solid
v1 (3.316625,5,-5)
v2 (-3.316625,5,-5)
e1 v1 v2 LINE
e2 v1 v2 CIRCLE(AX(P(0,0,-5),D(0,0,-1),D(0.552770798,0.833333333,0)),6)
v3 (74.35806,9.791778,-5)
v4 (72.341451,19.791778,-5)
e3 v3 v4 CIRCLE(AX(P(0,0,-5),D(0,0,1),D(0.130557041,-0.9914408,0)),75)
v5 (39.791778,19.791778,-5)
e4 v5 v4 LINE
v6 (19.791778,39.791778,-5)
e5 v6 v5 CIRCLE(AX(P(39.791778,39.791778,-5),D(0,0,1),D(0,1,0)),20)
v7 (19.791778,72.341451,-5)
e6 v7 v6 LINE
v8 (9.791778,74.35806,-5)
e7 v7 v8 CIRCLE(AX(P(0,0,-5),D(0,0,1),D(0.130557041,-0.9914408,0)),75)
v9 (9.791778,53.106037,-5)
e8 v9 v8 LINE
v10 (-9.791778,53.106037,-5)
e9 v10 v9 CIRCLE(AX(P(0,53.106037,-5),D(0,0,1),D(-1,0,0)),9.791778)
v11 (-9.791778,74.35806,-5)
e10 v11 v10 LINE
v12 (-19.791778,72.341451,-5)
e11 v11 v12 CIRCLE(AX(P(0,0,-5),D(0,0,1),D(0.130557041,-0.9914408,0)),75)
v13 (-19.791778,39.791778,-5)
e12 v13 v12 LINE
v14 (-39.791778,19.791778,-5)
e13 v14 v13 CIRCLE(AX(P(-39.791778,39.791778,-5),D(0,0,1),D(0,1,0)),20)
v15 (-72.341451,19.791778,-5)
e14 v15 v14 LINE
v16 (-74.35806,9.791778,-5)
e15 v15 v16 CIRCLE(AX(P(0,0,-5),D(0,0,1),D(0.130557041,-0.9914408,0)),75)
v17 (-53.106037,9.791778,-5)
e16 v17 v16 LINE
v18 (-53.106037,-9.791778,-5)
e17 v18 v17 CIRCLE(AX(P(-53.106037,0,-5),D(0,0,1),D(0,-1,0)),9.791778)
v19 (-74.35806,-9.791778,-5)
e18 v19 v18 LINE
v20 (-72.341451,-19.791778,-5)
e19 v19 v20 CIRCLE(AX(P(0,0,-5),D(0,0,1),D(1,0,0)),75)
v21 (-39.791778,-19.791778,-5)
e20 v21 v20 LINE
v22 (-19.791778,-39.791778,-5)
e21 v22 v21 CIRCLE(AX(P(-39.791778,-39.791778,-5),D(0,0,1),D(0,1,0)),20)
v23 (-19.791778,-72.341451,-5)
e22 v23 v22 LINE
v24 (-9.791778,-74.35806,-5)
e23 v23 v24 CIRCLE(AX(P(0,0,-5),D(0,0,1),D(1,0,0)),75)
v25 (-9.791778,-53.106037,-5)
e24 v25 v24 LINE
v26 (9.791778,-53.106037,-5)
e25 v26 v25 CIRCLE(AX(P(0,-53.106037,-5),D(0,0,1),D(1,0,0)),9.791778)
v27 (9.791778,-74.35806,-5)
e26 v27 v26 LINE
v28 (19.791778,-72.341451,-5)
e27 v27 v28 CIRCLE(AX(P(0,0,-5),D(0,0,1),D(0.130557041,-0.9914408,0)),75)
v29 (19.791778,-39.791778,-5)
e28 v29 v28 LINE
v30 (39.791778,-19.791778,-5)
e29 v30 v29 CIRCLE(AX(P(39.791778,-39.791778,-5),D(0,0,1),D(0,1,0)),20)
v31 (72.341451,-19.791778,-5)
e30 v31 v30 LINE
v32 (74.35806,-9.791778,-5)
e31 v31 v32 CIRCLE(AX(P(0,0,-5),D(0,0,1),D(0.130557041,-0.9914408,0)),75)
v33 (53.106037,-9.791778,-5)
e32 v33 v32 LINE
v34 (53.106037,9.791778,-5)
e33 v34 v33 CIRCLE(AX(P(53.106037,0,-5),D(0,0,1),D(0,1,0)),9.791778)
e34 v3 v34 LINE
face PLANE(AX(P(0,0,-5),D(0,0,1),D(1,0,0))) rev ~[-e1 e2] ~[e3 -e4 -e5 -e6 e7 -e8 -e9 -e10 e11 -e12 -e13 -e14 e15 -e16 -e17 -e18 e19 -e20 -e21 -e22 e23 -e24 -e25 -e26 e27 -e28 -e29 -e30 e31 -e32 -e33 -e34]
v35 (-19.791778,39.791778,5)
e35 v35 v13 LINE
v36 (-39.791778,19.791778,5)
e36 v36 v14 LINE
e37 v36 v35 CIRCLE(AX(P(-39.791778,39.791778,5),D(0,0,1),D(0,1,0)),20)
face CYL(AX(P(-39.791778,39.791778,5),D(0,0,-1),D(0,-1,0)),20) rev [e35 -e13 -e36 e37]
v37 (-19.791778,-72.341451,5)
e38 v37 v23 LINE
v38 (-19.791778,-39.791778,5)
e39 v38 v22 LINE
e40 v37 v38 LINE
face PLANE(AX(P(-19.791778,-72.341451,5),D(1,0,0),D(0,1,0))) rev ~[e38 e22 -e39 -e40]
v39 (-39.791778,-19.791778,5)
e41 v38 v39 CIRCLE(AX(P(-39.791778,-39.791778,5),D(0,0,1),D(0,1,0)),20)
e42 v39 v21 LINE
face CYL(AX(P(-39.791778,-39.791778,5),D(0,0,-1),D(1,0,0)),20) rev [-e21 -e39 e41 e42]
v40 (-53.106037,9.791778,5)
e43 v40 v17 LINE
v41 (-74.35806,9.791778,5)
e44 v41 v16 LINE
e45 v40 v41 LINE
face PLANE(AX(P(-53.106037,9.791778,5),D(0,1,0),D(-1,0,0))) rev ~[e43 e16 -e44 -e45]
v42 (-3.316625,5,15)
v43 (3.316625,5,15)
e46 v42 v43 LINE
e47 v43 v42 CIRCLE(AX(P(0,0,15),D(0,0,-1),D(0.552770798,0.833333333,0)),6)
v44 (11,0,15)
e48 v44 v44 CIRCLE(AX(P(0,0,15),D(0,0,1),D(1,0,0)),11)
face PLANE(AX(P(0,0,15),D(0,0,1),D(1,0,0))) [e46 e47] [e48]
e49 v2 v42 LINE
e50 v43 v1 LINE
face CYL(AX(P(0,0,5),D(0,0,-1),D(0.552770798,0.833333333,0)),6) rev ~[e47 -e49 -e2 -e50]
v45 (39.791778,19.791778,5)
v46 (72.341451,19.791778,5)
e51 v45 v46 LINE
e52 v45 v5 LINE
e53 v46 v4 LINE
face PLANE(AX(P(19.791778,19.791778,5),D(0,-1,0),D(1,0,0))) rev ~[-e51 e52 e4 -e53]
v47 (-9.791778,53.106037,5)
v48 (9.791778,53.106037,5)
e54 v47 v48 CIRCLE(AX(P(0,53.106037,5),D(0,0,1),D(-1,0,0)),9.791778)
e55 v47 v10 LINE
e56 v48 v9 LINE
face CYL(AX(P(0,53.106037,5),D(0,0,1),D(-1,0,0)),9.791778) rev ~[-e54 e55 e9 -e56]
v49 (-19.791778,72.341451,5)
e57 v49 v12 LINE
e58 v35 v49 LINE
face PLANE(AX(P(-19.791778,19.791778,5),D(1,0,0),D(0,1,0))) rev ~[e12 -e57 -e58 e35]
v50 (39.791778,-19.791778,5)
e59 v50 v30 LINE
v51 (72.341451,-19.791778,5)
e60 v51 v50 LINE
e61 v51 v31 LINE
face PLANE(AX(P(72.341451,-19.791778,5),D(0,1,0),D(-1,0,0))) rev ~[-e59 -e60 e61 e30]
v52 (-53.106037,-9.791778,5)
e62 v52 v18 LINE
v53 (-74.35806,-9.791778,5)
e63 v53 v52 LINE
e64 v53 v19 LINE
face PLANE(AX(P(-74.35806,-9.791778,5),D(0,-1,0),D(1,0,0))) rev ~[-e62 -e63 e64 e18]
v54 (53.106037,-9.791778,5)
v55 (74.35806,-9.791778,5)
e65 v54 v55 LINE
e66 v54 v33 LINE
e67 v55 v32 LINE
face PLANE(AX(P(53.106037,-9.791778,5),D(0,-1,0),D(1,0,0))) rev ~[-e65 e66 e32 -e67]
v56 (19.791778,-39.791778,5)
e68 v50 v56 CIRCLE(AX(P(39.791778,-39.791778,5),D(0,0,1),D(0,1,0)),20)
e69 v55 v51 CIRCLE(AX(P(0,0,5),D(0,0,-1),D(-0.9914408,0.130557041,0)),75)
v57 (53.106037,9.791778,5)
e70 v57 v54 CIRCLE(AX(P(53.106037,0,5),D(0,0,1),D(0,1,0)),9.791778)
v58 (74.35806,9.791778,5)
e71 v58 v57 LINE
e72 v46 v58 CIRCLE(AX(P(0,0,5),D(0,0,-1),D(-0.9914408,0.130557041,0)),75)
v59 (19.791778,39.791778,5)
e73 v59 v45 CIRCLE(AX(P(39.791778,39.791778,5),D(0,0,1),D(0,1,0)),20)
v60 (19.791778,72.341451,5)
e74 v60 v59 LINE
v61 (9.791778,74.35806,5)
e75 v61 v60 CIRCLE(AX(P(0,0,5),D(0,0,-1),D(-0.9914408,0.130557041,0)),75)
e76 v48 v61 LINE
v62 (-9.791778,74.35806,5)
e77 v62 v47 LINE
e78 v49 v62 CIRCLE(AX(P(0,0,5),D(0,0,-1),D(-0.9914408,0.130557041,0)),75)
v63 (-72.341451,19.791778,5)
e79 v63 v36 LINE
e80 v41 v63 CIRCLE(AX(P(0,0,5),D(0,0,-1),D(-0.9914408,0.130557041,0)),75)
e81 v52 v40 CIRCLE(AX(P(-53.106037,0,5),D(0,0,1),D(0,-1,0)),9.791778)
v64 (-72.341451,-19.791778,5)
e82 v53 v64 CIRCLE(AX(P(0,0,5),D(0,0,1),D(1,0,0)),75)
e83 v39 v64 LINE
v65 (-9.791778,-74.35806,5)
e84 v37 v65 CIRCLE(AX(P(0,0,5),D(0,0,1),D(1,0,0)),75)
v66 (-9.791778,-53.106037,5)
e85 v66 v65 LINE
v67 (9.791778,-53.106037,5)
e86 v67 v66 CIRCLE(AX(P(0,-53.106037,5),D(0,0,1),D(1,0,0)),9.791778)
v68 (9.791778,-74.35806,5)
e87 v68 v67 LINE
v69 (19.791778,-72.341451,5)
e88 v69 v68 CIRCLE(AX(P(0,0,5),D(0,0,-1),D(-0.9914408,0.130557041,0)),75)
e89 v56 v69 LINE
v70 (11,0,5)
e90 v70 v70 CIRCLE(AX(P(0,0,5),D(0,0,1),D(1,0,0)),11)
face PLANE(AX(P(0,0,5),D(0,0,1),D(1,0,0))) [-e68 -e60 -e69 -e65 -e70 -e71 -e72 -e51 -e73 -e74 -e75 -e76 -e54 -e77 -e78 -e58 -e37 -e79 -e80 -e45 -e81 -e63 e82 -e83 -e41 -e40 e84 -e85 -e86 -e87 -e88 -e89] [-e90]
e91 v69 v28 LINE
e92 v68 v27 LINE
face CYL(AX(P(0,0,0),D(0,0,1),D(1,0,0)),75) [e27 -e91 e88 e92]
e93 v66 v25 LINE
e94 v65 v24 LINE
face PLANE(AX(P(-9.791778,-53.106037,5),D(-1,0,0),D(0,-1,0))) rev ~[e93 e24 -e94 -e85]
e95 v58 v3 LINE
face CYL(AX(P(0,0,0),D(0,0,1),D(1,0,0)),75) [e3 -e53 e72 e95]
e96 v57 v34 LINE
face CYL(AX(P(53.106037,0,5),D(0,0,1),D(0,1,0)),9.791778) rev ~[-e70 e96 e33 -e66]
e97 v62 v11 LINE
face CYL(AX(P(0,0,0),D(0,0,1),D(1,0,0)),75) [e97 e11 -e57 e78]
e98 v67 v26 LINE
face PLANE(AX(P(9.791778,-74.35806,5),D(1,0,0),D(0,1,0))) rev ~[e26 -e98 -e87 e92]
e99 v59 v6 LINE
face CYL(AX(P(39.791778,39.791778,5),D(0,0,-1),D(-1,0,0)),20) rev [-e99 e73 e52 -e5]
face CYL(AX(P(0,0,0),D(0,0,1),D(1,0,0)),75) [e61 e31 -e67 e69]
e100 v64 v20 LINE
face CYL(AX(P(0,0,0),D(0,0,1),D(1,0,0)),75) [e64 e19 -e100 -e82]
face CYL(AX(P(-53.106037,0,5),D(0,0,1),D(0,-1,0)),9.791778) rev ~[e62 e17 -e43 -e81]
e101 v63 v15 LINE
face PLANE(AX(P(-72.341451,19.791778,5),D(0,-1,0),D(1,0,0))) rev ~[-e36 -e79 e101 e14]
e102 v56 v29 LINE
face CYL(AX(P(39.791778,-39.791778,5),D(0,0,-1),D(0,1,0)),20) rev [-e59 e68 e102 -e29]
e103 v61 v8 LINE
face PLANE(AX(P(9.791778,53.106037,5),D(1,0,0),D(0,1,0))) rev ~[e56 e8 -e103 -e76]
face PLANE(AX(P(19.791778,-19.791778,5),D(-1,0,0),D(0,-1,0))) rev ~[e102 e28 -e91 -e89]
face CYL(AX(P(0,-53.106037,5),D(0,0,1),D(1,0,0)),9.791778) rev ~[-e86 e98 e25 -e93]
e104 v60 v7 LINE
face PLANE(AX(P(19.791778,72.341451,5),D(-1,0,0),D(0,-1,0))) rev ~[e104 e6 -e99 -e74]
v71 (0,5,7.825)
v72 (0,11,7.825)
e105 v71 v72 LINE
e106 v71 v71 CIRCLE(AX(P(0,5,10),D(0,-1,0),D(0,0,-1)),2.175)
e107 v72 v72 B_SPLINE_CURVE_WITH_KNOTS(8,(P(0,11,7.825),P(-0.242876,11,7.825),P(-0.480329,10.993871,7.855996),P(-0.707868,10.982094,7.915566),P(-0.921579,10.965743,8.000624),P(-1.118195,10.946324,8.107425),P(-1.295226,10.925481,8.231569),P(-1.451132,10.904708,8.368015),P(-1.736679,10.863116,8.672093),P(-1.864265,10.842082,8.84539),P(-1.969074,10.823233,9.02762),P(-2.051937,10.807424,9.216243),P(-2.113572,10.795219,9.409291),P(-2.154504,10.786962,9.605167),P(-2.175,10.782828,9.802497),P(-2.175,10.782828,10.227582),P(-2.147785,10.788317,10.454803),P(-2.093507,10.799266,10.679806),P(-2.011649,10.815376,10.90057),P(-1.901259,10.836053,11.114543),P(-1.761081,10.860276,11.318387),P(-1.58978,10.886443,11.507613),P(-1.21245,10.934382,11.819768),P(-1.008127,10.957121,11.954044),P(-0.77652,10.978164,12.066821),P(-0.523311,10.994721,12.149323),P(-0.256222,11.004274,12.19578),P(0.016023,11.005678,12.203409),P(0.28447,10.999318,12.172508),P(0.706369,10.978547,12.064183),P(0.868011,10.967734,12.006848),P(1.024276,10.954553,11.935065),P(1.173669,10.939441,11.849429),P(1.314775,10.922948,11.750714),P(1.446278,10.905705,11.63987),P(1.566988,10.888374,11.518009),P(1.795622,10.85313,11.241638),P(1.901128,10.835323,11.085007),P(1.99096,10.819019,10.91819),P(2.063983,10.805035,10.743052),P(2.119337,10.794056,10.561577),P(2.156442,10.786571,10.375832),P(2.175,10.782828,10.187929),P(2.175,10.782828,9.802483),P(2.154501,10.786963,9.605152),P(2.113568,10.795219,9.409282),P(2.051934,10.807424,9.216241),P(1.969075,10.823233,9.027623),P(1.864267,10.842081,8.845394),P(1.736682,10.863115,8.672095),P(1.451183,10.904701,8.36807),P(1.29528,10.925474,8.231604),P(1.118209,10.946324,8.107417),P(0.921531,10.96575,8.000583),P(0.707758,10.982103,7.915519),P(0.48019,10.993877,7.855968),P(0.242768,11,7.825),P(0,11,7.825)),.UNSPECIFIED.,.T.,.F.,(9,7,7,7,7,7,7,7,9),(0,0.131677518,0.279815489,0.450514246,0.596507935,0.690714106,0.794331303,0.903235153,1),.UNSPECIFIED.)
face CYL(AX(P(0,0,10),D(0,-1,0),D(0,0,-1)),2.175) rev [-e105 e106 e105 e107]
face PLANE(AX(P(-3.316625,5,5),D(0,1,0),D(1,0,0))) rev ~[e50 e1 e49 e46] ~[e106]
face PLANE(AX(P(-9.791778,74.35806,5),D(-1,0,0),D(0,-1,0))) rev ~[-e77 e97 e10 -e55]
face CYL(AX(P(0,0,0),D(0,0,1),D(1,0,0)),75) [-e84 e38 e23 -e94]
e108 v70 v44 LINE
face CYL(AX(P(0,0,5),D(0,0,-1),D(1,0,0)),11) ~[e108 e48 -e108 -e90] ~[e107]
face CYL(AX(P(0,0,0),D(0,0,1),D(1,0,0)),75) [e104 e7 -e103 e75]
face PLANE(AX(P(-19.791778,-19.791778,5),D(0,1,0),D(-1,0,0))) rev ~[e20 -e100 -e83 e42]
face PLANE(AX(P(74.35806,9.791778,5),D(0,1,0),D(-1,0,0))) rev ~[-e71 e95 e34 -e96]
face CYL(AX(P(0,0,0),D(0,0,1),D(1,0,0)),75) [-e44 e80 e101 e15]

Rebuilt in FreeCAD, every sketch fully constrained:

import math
import FreeCAD as App
import Part
import Sketcher


def edges_at(feature, points):
    """Names of the edges that pass closest to the given points."""
    edges = feature.Shape.Edges
    near = lambda p: min(range(len(edges)), key=lambda i: edges[i].distToShape(Part.Vertex(*p))[0])
    return sorted({f"Edge{near(p) + 1}" for p in points})

doc = App.newDocument("Part")
body = doc.addObject("PartDesign::Body", "Body")

# Sketch on XY plane
sketch1 = body.newObject("Sketcher::SketchObject", "Sketch")
sketch1.AttachmentSupport = (doc.getObject("XY_Plane"), [""])
sketch1.MapMode = "FlatFace"
sketch1.addGeometry(Part.Circle(App.Vector(0, 0, 0), App.Vector(0, 0, 1), 75), False)
sketch1.addConstraint([
    Sketcher.Constraint("Coincident", 0, 3, -1, 1),
    Sketcher.Constraint("Diameter", 0, 150.0),
])
pad1 = body.newObject("PartDesign::Pad", "Pad")
pad1.Profile = sketch1
pad1.Length = 10
pad1.Midplane = True

# Sketch on XY plane
sketch2 = body.newObject("Sketcher::SketchObject", "Sketch001")
sketch2.AttachmentSupport = (doc.getObject("XY_Plane"), [""])
sketch2.MapMode = "FlatFace"
sketch2.AttachmentOffset = App.Placement(App.Vector(0, 0, 5), App.Rotation())
sketch2.addGeometry([
    Part.LineSegment(App.Vector(-53, 10, 0), App.Vector(-74, 10, 0)),
    Part.ArcOfCircle(Part.Circle(App.Vector(0, 0, 0), App.Vector(0, 0, 1), 75), math.radians(172.5), math.radians(187.5)),
    Part.LineSegment(App.Vector(-74, -10, 0), App.Vector(-53, -10, 0)),
    Part.ArcOfCircle(Part.Circle(App.Vector(-53, 0, 0), App.Vector(0, 0, 1), 10), math.radians(-90), math.radians(90)),
], False)
sketch2.addConstraint([
    Sketcher.Constraint("Coincident", 0, 2, 1, 1),
    Sketcher.Constraint("Coincident", 1, 2, 2, 1),
    Sketcher.Constraint("Tangent", 2, 2, 3, 1),
    Sketcher.Constraint("Tangent", 3, 2, 0, 1),
    Sketcher.Constraint("Horizontal", 0),
    Sketcher.Constraint("Horizontal", 2),
    Sketcher.Constraint("Coincident", 1, 3, -1, 1),
    Sketcher.Constraint("PointOnObject", 3, 3, -1),
    Sketcher.Constraint("Radius", 1, 75.0),
    Sketcher.Constraint("Radius", 3, 9.791778),
    Sketcher.Constraint("DistanceX", 0, 2, 0, 1, 21.252023),
])
pocket1 = body.newObject("PartDesign::Pocket", "Pocket")
pocket1.Profile = sketch2
pocket1.Length = 20
doc.recompute()

polarpattern = body.newObject("PartDesign::PolarPattern", "PolarPattern")
polarpattern.Originals = [pocket1]
polarpattern.Axis = (doc.getObject("Z_Axis"), [""])
polarpattern.Angle = 360
polarpattern.Occurrences = 4
body.Tip = polarpattern

# Sketch on XY plane
sketch3 = body.newObject("Sketcher::SketchObject", "Sketch002")
sketch3.AttachmentSupport = (doc.getObject("XY_Plane"), [""])
sketch3.MapMode = "FlatFace"
sketch3.AttachmentOffset = App.Placement(App.Vector(0, 0, 5), App.Rotation())
sketch3.addGeometry([
    Part.LineSegment(App.Vector(-72, 72, 0), App.Vector(-72, 20, 0)),
    Part.LineSegment(App.Vector(-72, 20, 0), App.Vector(-20, 20, 0)),
    Part.LineSegment(App.Vector(-20, 20, 0), App.Vector(-20, 72, 0)),
    Part.LineSegment(App.Vector(-20, 72, 0), App.Vector(-72, 72, 0)),
], False)
sketch3.addConstraint([
    Sketcher.Constraint("Coincident", 0, 2, 1, 1),
    Sketcher.Constraint("Coincident", 1, 2, 2, 1),
    Sketcher.Constraint("Coincident", 2, 2, 3, 1),
    Sketcher.Constraint("Coincident", 3, 2, 0, 1),
    Sketcher.Constraint("Vertical", 0),
    Sketcher.Constraint("Horizontal", 1),
    Sketcher.Constraint("Vertical", 2),
    Sketcher.Constraint("Horizontal", 3),
    Sketcher.Constraint("Equal", 3, 0),
    Sketcher.Constraint("DistanceX", 1, 1, 1, 2, 52.549673),
    Sketcher.Constraint("DistanceX", 0, 2, -1, 1, 72.341451),
    Sketcher.Constraint("DistanceY", -1, 1, 0, 2, 19.791778),
])
pocket2 = body.newObject("PartDesign::Pocket", "Pocket001")
pocket2.Profile = sketch3
pocket2.Length = 20
doc.recompute()

polarpattern2 = body.newObject("PartDesign::PolarPattern", "PolarPattern001")
polarpattern2.Originals = [pocket2]
polarpattern2.Axis = (doc.getObject("Z_Axis"), [""])
polarpattern2.Angle = 360
polarpattern2.Occurrences = 4
body.Tip = polarpattern2
doc.recompute()

fillet = body.newObject("PartDesign::Fillet", "Fillet")
fillet.Base = (polarpattern2, edges_at(polarpattern2, [
    (-19.792, -19.792, 0),
    (19.792, -19.792, 0),
    (19.792, 19.792, 0),
    (-19.792, 19.792, 0),
]))
fillet.Radius = 20

# Sketch on XY plane
sketch4 = body.newObject("Sketcher::SketchObject", "Sketch003")
sketch4.AttachmentSupport = (doc.getObject("XY_Plane"), [""])
sketch4.MapMode = "FlatFace"
sketch4.AttachmentOffset = App.Placement(App.Vector(0, 0, 5), App.Rotation())
sketch4.addGeometry([
    Part.LineSegment(App.Vector(3, 5, 0), App.Vector(-3, 5, 0)),
    Part.ArcOfCircle(Part.Circle(App.Vector(0, 0, 0), App.Vector(0, 0, 1), 6), math.radians(124), math.radians(416)),
], False)
sketch4.addConstraint([
    Sketcher.Constraint("Coincident", 0, 1, 1, 2),
    Sketcher.Constraint("Coincident", 1, 1, 0, 2),
    Sketcher.Constraint("Horizontal", 0),
    Sketcher.Constraint("Coincident", 1, 3, -1, 1),
    Sketcher.Constraint("Radius", 1, 6.0),
    Sketcher.Constraint("DistanceY", -1, 1, 0, 1, 5.0),
])
pocket3 = body.newObject("PartDesign::Pocket", "Pocket002")
pocket3.Profile = sketch4
pocket3.Type = "ThroughAll"
pocket3.Midplane = True

# Sketch on XY plane
sketch5 = body.newObject("Sketcher::SketchObject", "Sketch004")
sketch5.AttachmentSupport = (doc.getObject("XY_Plane"), [""])
sketch5.MapMode = "FlatFace"
sketch5.AttachmentOffset = App.Placement(App.Vector(0, 0, 5), App.Rotation())
sketch5.addGeometry([
    Part.Circle(App.Vector(0, 0, 0), App.Vector(0, 0, 1), 11),
    Part.ArcOfCircle(Part.Circle(App.Vector(0, 0, 0), App.Vector(0, 0, 1), 6), math.radians(124), math.radians(416)),
    Part.LineSegment(App.Vector(-3, 5, 0), App.Vector(3, 5, 0)),
], False)
sketch5.addConstraint([
    Sketcher.Constraint("Coincident", 1, 1, 2, 1),
    Sketcher.Constraint("Coincident", 2, 2, 1, 2),
    Sketcher.Constraint("Horizontal", 2),
    Sketcher.Constraint("Coincident", 0, 3, -1, 1),
    Sketcher.Constraint("Coincident", 1, 3, -1, 1),
    Sketcher.Constraint("Diameter", 0, 22.0),
    Sketcher.Constraint("Radius", 1, 6.0),
    Sketcher.Constraint("DistanceY", -1, 1, 1, 1, 5.0),
])
pad2 = body.newObject("PartDesign::Pad", "Pad001")
pad2.Profile = sketch5
pad2.Length = 10

# Sketch on XZ plane
sketch6 = body.newObject("Sketcher::SketchObject", "Sketch005")
sketch6.AttachmentSupport = (doc.getObject("XZ_Plane"), [""])
sketch6.MapMode = "FlatFace"
sketch6.addGeometry(Part.Circle(App.Vector(0, 10, 0), App.Vector(0, 0, 1), 2.2), False)
sketch6.addConstraint([
    Sketcher.Constraint("PointOnObject", 0, 3, -2),
    Sketcher.Constraint("Diameter", 0, 4.35),
    Sketcher.Constraint("DistanceY", -1, 1, 0, 3, 10.0),
])
pocket4 = body.newObject("PartDesign::Pocket", "Pocket003")
pocket4.Profile = sketch6
pocket4.Length = 14

doc.recompute()
